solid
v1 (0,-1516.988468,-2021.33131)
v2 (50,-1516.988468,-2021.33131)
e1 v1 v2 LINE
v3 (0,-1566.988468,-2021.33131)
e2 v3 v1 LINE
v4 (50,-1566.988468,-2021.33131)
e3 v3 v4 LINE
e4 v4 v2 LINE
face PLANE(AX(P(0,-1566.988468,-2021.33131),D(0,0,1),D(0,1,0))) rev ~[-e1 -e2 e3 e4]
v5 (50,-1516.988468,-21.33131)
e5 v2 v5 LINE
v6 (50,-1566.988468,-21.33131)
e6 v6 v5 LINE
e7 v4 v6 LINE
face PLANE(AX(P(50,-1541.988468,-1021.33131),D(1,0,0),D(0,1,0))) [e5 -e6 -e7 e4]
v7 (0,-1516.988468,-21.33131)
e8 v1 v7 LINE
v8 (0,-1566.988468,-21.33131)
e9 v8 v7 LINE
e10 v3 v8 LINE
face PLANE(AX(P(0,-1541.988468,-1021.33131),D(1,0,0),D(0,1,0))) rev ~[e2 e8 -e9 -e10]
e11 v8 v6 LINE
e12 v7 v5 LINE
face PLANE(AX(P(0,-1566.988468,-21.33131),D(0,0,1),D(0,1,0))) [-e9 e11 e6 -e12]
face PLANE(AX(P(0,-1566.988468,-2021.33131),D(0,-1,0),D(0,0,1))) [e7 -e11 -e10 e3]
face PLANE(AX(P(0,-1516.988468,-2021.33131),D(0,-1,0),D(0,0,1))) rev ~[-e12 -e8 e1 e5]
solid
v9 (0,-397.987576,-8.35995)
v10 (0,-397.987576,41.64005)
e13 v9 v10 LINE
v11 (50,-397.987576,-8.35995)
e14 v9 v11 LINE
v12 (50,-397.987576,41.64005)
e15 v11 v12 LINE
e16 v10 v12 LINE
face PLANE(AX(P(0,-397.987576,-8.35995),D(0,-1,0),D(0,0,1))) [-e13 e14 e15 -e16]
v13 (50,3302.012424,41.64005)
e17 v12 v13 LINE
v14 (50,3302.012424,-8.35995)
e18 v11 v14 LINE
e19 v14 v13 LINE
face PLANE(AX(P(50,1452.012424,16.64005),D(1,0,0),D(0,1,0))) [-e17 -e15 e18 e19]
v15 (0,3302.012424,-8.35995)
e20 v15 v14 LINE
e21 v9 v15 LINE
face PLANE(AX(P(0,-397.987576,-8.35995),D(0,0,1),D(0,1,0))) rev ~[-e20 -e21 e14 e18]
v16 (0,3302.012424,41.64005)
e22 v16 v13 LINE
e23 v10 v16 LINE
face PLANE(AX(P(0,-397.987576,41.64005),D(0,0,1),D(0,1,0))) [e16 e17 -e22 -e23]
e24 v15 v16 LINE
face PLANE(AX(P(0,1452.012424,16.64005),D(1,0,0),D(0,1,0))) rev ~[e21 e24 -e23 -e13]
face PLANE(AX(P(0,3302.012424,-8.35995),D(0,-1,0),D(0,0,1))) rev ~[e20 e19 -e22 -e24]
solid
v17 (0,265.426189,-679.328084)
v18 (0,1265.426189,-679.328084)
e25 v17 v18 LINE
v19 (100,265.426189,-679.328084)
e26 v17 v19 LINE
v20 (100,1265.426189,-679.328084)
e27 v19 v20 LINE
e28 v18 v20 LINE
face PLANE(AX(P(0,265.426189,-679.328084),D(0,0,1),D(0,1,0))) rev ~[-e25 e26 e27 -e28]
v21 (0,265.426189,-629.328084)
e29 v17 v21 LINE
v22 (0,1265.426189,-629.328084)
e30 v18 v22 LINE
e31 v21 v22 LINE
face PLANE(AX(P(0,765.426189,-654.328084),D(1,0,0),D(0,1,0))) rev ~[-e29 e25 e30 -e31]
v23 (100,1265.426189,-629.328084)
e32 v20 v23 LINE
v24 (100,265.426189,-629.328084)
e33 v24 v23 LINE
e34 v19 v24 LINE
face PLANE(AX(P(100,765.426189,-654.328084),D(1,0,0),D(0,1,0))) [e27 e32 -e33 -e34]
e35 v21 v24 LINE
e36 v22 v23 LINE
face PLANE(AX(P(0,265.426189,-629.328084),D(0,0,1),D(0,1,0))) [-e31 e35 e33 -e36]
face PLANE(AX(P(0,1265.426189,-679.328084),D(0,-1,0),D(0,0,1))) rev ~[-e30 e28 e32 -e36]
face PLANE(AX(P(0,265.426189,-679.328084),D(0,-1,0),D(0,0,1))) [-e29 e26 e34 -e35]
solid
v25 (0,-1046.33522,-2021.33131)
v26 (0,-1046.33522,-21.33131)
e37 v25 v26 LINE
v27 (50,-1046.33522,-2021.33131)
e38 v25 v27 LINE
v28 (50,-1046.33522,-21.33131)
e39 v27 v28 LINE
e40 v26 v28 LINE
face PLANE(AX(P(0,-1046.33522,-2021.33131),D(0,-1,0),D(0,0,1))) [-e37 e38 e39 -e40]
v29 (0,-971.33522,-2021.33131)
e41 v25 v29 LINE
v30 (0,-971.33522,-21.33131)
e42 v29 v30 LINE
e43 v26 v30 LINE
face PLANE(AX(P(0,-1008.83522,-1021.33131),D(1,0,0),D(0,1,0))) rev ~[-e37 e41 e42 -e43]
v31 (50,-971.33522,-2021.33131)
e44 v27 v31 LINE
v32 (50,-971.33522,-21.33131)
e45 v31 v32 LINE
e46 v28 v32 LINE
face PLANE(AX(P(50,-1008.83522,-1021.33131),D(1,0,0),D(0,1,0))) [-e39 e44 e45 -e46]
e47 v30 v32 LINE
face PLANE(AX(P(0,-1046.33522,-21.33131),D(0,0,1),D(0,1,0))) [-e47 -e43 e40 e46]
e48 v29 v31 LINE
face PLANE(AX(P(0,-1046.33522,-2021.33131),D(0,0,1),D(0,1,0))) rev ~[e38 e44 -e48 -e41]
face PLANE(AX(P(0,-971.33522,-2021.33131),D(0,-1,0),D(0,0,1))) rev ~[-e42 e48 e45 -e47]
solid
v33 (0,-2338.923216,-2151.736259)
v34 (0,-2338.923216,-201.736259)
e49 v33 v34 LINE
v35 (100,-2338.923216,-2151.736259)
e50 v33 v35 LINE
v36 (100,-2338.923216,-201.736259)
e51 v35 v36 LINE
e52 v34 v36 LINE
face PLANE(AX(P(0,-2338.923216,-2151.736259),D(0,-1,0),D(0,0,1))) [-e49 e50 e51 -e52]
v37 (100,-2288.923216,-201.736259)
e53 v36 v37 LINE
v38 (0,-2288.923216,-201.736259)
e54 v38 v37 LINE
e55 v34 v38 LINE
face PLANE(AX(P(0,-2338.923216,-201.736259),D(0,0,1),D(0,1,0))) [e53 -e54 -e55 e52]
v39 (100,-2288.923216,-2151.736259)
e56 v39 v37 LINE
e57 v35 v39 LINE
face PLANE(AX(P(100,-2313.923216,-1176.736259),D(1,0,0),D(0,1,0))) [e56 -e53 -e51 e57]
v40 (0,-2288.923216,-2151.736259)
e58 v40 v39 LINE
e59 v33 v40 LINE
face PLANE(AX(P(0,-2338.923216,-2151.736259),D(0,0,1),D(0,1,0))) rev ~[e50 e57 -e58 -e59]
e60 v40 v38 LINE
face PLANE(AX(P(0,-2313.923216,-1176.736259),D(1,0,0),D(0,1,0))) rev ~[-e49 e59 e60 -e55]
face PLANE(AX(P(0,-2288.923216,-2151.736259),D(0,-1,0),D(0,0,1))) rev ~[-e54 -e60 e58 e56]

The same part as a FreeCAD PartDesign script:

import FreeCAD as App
import Part
import Sketcher
from FreeCAD import Vector
Q = App.Units.Quantity


def add_polygon(sketch, points):
    """Adds a closed chain of lines whose ends are joined by coincident constraints."""
    first, n = sketch.GeometryCount, len(points)
    for a, b in zip(points, points[1:] + points[:1]):
        sketch.addGeometry(Part.LineSegment(App.Vector(*a, 0), App.Vector(*b, 0)), False)
    for i in range(n):
        sketch.addConstraint(Sketcher.Constraint("Coincident", first + i, 2, first + (i + 1) % n, 1))

doc = App.newDocument("Part")
body = doc.addObject("PartDesign::Body", "Body")
body.AllowCompound = True

# Sketch on YZ plane
sketch1 = body.newObject("Sketcher::SketchObject", "Sketch")
sketch1.AttachmentSupport = (doc.getObject("YZ_Plane"), [""])
sketch1.MapMode = "FlatFace"
add_polygon(sketch1, [(-398, 42), (-398, -8), (3302, -8), (3302, 42)])  # lines 0-3
add_polygon(sketch1, [(-1046, -21), (-1046, -2021), (-971, -2021), (-971, -21)])  # lines 4-7
add_polygon(sketch1, [(-1567, -21), (-1567, -2021), (-1517, -2021), (-1517, -21)])  # lines 8-11
sketch1.addConstraint(Sketcher.Constraint("Vertical", 0))
sketch1.addConstraint(Sketcher.Constraint("Horizontal", 1))
sketch1.addConstraint(Sketcher.Constraint("Vertical", 2))
sketch1.addConstraint(Sketcher.Constraint("Horizontal", 3))
sketch1.addConstraint(Sketcher.Constraint("Vertical", 4))
sketch1.addConstraint(Sketcher.Constraint("Horizontal", 5))
sketch1.addConstraint(Sketcher.Constraint("Vertical", 6))
sketch1.addConstraint(Sketcher.Constraint("Horizontal", 7))
sketch1.addConstraint(Sketcher.Constraint("Vertical", 8))
sketch1.addConstraint(Sketcher.Constraint("Horizontal", 9))
sketch1.addConstraint(Sketcher.Constraint("Vertical", 10))
sketch1.addConstraint(Sketcher.Constraint("Horizontal", 11))
sketch1.addConstraint(Sketcher.Constraint("Horizontal", 5, 2, 8, 2))
sketch1.addConstraint(Sketcher.Constraint("Horizontal", 7, 2, 10, 2))
sketch1.addConstraint(Sketcher.Constraint("Equal", 11, 0))
sketch1.addConstraint(Sketcher.Constraint("DistanceX", 1, 1, 1, 2, Q("3700 mm")))
sketch1.addConstraint(Sketcher.Constraint("DistanceX", 5, 1, 5, 2, Q("75 mm")))
sketch1.addConstraint(Sketcher.Constraint("DistanceX", 9, 1, 9, 2, Q("50 mm")))
sketch1.addConstraint(Sketcher.Constraint("DistanceY", 4, 2, 4, 1, Q("2000 mm")))
sketch1.addConstraint(Sketcher.Constraint("DistanceY", 0, 2, -1, 1, Q("8.35995 mm")))
sketch1.addConstraint(Sketcher.Constraint("DistanceX", 4, 2, -1, 1, Q("1046.33522 mm")))
sketch1.addConstraint(Sketcher.Constraint("DistanceY", 4, 2, -1, 1, Q("2021.33131 mm")))
sketch1.addConstraint(Sketcher.Constraint("DistanceX", 8, 2, -1, 1, Q("1566.988468 mm")))
sketch1.addConstraint(Sketcher.Constraint("DistanceX", 8, 2, 0, 2, Q("1169.000892 mm")))
pad1 = body.newObject("PartDesign::Pad", "Pad")
pad1.Profile = sketch1
pad1.Length = 50
body2 = doc.addObject("PartDesign::Body", "Body001")
body2.AllowCompound = True

# Sketch on YZ plane
sketch2 = body2.newObject("Sketcher::SketchObject", "Sketch001")
sketch2.AttachmentSupport = (doc.getObject("YZ_Plane001"), [""])
sketch2.MapMode = "FlatFace"
add_polygon(sketch2, [(265, -629), (265, -679), (1265, -679), (1265, -629)])  # lines 0-3
add_polygon(sketch2, [(-2339, -202), (-2339, -2152), (-2289, -2152), (-2289, -202)])  # lines 4-7
sketch2.addConstraint(Sketcher.Constraint("Vertical", 0))
sketch2.addConstraint(Sketcher.Constraint("Horizontal", 1))
sketch2.addConstraint(Sketcher.Constraint("Vertical", 2))
sketch2.addConstraint(Sketcher.Constraint("Horizontal", 3))
sketch2.addConstraint(Sketcher.Constraint("Vertical", 4))
sketch2.addConstraint(Sketcher.Constraint("Horizontal", 5))
sketch2.addConstraint(Sketcher.Constraint("Vertical", 6))
sketch2.addConstraint(Sketcher.Constraint("Horizontal", 7))
sketch2.addConstraint(Sketcher.Constraint("Equal", 7, 0))
sketch2.addConstraint(Sketcher.Constraint("DistanceX", 1, 1, 1, 2, Q("1000 mm")))
sketch2.addConstraint(Sketcher.Constraint("DistanceX", 5, 1, 5, 2, Q("50 mm")))
sketch2.addConstraint(Sketcher.Constraint("DistanceY", 4, 2, 4, 1, Q("1950 mm")))
sketch2.addConstraint(Sketcher.Constraint("DistanceX", -1, 1, 0, 2, Q("265.426189 mm")))
sketch2.addConstraint(Sketcher.Constraint("DistanceY", 4, 2, -1, 1, Q("2151.736259 mm")))
sketch2.addConstraint(Sketcher.Constraint("DistanceY", 0, 2, -1, 1, Q("679.328084 mm")))
sketch2.addConstraint(Sketcher.Constraint("DistanceX", 4, 2, -1, 1, Q("2338.923216 mm")))
pad2 = body2.newObject("PartDesign::Pad", "Pad001")
pad2.Profile = sketch2
pad2.Length = 100

doc.recompute()
